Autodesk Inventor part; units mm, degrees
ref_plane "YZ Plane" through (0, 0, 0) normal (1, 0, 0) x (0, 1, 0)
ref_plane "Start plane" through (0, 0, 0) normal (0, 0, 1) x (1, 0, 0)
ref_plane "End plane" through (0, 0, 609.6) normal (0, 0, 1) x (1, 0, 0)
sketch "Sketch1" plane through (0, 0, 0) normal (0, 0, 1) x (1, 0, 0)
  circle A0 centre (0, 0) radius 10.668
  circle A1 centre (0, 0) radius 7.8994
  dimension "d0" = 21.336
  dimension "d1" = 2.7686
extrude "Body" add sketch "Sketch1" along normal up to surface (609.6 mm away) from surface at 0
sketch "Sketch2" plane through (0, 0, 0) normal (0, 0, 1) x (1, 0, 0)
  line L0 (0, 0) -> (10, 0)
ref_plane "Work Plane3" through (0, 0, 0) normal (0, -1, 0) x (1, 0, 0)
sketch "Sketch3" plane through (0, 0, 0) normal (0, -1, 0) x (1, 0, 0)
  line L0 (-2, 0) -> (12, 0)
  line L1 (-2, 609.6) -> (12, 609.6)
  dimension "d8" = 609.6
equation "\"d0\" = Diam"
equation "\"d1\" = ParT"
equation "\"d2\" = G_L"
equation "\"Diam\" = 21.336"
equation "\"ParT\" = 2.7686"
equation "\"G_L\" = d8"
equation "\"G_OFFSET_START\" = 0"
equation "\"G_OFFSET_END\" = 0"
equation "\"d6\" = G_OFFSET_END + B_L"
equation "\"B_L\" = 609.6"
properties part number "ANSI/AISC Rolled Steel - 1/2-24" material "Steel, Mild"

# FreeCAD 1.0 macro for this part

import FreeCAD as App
import Part
import Sketcher

V = App.Vector
Q = App.Units.Quantity

doc = App.newDocument("Part")
body = doc.addObject("PartDesign::Body", "Body")

sketch1 = body.newObject("Sketcher::SketchObject", "Sketch")
sketch1.AttachmentSupport = (doc.getObject("XY_Plane"), [""])
sketch1.MapMode = "FlatFace"
sketch1.addGeometry([
    Part.Circle(V(0, 0, 0), V(0, 0, 1), 11),
    Part.Circle(V(0, 0, 0), V(0, 0, 1), 8),
], False)
sketch1.addConstraint([
    Sketcher.Constraint("Coincident", 0, 3, -1, 1),
    Sketcher.Constraint("Coincident", 1, 3, -1, 1),
    Sketcher.Constraint("Diameter", 0, Q("0.84 in")),
    Sketcher.Constraint("Diameter", 1, Q("0.622 in")),
])
pad1 = body.newObject("PartDesign::Pad", "Pad")
pad1.Profile = sketch1
pad1.Length = Q("24 in")

doc.recompute()
